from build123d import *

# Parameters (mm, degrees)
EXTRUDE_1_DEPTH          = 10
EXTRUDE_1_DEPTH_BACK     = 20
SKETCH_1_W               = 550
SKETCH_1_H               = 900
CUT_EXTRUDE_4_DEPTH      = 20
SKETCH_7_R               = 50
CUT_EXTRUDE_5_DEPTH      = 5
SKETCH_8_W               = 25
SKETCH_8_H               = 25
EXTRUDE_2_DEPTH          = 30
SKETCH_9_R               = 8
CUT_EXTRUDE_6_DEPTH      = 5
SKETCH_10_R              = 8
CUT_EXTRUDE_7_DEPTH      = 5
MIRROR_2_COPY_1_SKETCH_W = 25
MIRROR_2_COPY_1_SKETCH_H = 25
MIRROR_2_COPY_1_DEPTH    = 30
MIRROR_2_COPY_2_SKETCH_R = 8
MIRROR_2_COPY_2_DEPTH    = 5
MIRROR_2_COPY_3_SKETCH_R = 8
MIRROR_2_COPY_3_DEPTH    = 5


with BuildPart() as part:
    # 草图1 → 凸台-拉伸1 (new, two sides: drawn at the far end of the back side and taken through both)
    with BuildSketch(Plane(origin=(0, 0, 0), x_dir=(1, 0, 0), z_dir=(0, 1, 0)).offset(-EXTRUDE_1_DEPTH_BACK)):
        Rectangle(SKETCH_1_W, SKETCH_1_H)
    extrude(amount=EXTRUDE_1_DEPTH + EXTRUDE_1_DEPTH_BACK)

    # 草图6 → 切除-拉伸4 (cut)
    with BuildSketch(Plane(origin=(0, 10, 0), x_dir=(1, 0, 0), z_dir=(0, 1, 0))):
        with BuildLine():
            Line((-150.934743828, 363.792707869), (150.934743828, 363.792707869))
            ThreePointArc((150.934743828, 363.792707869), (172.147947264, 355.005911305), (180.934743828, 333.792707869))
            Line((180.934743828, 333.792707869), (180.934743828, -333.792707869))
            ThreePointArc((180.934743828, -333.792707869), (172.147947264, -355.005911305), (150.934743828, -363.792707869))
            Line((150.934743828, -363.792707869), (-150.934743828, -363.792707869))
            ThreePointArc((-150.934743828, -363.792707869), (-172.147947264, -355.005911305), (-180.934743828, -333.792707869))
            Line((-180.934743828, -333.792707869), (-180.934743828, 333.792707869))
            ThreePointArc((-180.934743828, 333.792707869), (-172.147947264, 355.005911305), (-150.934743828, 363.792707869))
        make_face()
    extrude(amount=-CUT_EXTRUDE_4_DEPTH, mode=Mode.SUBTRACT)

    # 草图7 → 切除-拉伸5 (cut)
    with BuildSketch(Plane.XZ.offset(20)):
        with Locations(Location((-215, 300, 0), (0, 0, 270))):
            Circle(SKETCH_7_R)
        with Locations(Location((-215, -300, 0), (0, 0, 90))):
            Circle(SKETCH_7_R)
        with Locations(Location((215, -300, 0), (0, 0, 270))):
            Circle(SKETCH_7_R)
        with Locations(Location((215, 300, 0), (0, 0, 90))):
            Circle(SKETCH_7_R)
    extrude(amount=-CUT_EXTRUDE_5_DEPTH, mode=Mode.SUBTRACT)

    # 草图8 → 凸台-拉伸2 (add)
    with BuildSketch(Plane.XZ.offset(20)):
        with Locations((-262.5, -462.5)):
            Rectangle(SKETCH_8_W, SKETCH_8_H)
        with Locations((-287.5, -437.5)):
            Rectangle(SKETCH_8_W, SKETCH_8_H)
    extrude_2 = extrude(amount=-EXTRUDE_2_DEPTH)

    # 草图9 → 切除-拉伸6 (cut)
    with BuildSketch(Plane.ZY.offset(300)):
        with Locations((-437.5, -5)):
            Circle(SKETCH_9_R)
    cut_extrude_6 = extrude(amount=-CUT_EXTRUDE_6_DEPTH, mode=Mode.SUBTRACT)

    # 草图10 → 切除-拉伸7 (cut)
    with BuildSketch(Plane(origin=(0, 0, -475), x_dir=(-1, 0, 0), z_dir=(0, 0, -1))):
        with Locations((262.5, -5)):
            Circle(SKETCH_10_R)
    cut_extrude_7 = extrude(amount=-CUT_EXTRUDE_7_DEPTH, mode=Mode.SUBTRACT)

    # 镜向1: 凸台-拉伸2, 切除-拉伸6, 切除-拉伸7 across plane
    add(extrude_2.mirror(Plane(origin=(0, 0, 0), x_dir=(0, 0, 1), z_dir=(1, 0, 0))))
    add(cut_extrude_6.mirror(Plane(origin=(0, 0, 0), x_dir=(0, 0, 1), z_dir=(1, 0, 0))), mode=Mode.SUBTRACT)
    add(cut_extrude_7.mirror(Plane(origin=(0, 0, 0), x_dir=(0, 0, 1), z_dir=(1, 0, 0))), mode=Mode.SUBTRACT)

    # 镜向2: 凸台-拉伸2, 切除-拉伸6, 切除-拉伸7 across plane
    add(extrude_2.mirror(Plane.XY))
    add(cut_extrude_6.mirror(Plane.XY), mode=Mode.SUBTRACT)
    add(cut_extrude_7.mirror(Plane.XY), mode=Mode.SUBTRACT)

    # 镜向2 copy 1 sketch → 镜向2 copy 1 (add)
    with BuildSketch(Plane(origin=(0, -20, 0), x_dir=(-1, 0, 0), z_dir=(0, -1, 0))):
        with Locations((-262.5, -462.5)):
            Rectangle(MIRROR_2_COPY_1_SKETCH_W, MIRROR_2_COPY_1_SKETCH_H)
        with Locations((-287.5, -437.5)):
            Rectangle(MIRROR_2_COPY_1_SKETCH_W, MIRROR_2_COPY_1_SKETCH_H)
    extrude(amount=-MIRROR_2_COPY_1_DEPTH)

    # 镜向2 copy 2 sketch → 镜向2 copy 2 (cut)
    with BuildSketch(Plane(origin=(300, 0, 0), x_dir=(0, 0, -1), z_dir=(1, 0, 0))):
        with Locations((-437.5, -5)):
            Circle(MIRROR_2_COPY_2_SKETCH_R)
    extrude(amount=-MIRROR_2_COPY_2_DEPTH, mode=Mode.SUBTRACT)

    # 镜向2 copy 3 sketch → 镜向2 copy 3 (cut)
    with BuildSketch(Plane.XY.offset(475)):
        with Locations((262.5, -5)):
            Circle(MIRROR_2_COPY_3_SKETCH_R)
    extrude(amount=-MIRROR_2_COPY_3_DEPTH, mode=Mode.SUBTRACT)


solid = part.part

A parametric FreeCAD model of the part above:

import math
import FreeCAD as App
import Part
import Sketcher
from FreeCAD import Vector

doc = App.newDocument("Part")
params = doc.addObject("Spreadsheet::Sheet", "Params")
for row, (alias, value) in enumerate([
    ("sketch1_width", "550 mm"),
    ("sketch1_height", "900 mm"),
    ("pad1_length", "10 mm"),
    ("pad1_length2", "20 mm"),
    ("sketch2_radius", "30 mm"),
    ("pocket1_length", "20 mm"),
    ("sketch3_diameter", "100 mm"),
    ("pocket2_length", "5 mm"),
    ("sketch4_width", "25 mm"),
    ("pad2_length", "30 mm"),
    ("sketch5_diameter", "16 mm"),
    ("pocket3_length", "5 mm"),
    ("sketch6_diameter", "16 mm"),
    ("pocket4_length", "5 mm"),
    ("sketch7_width", "25 mm"),
    ("pad3_length", "30 mm"),
    ("sketch8_diameter", "16 mm"),
    ("pocket5_length", "5 mm"),
    ("sketch9_diameter", "16 mm"),
    ("pocket6_length", "5 mm"),
], start=1):
    params.set(f"A{row}", alias)
    params.set(f"B{row}", "=" + value)
    params.setAlias(f"B{row}", alias)

body = doc.addObject("PartDesign::Body", "Body")

# Sketch on XZ plane
sketch1 = doc.addObject("Sketcher::SketchObject", "Sketch")
body.addObject(sketch1)
sketch1.AttachmentSupport = (doc.XZ_Plane, [""])
sketch1.MapMode = "FlatFace"
sketch1.addGeometry([
    Part.LineSegment(Vector(-275, -450, 0), Vector(-275, 450, 0)),
    Part.LineSegment(Vector(-275, 450, 0), Vector(275, 450, 0)),
    Part.LineSegment(Vector(275, 450, 0), Vector(275, -450, 0)),
    Part.LineSegment(Vector(275, -450, 0), Vector(-275, -450, 0)),
], False)
sketch1.addConstraint([
    Sketcher.Constraint("Coincident", 0, 2, 1, 1),
    Sketcher.Constraint("Coincident", 1, 2, 2, 1),
    Sketcher.Constraint("Coincident", 2, 2, 3, 1),
    Sketcher.Constraint("Coincident", 3, 2, 0, 1),
    Sketcher.Constraint("Vertical", 0),
    Sketcher.Constraint("Horizontal", 1),
    Sketcher.Constraint("Vertical", 2),
    Sketcher.Constraint("Horizontal", 3),
    Sketcher.Constraint("Symmetric", 0, 2, 2, 2, -1, 1),
    Sketcher.Constraint("DistanceX", 1, 1, 1, 2, 550.0),
    Sketcher.Constraint("DistanceY", 0, 1, 0, 2, 900.0),
])
sketch1.setExpression("Constraints[9]", "Params.sketch1_width")
sketch1.setExpression("Constraints[10]", "Params.sketch1_height")
pad1 = doc.addObject("PartDesign::Pad", "Pad")
body.addObject(pad1)
pad1.Profile = sketch1
pad1.Type = "TwoLengths"
pad1.setExpression("Length", "Params.pad1_length")
pad1.setExpression("Length2", "Params.pad1_length2")
pad1.Reversed = True

# Sketch on XZ plane
sketch2 = doc.addObject("Sketcher::SketchObject", "Sketch001")
body.addObject(sketch2)
sketch2.AttachmentSupport = (doc.XZ_Plane, [""])
sketch2.MapMode = "FlatFace"
sketch2.AttachmentOffset = App.Placement(Vector(0, 0, -10), App.Rotation())
sketch2.addGeometry([
    Part.LineSegment(Vector(151, -364, 0), Vector(-151, -364, 0)),  # 0
    Part.ArcOfCircle(Part.Circle(Vector(-151, -334, 0), Vector(0, 0, 1), 30), math.radians(180), math.radians(270)),  # 1
    Part.LineSegment(Vector(-181, -334, 0), Vector(-181, 334, 0)),  # 2
    Part.ArcOfCircle(Part.Circle(Vector(-151, 334, 0), Vector(0, 0, 1), 30), math.radians(90), math.radians(180)),  # 3
    Part.LineSegment(Vector(-151, 364, 0), Vector(151, 364, 0)),  # 4
    Part.ArcOfCircle(Part.Circle(Vector(151, 334, 0), Vector(0, 0, 1), 30), math.radians(0), math.radians(90)),  # 5
    Part.LineSegment(Vector(181, 334, 0), Vector(181, -334, 0)),  # 6
    Part.ArcOfCircle(Part.Circle(Vector(151, -334, 0), Vector(0, 0, 1), 30), math.radians(-90), math.radians(0)),  # 7
], False)
sketch2.addConstraint([
    Sketcher.Constraint("Tangent", 0, 2, 1, 2),
    Sketcher.Constraint("Tangent", 1, 1, 2, 1),
    Sketcher.Constraint("Tangent", 2, 2, 3, 2),
    Sketcher.Constraint("Tangent", 3, 1, 4, 1),
    Sketcher.Constraint("Tangent", 4, 2, 5, 2),
    Sketcher.Constraint("Tangent", 5, 1, 6, 1),
    Sketcher.Constraint("Tangent", 6, 2, 7, 2),
    Sketcher.Constraint("Tangent", 7, 1, 0, 1),
    Sketcher.Constraint("Horizontal", 0),
    Sketcher.Constraint("Vertical", 2),
    Sketcher.Constraint("Horizontal", 4),
    Sketcher.Constraint("Vertical", 6),
    Sketcher.Constraint("Equal", 1, 3),
    Sketcher.Constraint("Equal", 3, 5),
    Sketcher.Constraint("Equal", 5, 7),
    Sketcher.Constraint("Symmetric", 1, 3, 5, 3, -1, 1),
    Sketcher.Constraint("Radius", 1, 30.0),
    Sketcher.Constraint("DistanceX", 0, 2, 0, 1, 301.869488),
    Sketcher.Constraint("DistanceY", 2, 1, 2, 2, 667.585416),
])
sketch2.setExpression("Constraints[16]", "Params.sketch2_radius")
pocket1 = doc.addObject("PartDesign::Pocket", "Pocket")
body.addObject(pocket1)
pocket1.Profile = sketch2
pocket1.setExpression("Length", "Params.pocket1_length")
pocket1.Reversed = True

# Sketch on XZ plane
sketch3 = doc.addObject("Sketcher::SketchObject", "Sketch002")
body.addObject(sketch3)
sketch3.AttachmentSupport = (doc.XZ_Plane, [""])
sketch3.MapMode = "FlatFace"
sketch3.AttachmentOffset = App.Placement(Vector(0, 0, 20), App.Rotation())
sketch3.addGeometry([
    Part.Circle(Vector(-215, 300, 0), Vector(0, 0, 1), 50),
    Part.Circle(Vector(-215, -300, 0), Vector(0, 0, 1), 50),
    Part.Circle(Vector(215, -300, 0), Vector(0, 0, 1), 50),
    Part.Circle(Vector(215, 300, 0), Vector(0, 0, 1), 50),
], False)
sketch3.addConstraint([
    Sketcher.Constraint("Equal", 0, 1),
    Sketcher.Constraint("Equal", 1, 2),
    Sketcher.Constraint("Equal", 2, 3),
    Sketcher.Constraint("Symmetric", 0, 3, 2, 3, -1, 1),
    Sketcher.Constraint("Symmetric", 1, 3, 3, 3, -1, 1),
    Sketcher.Constraint("Symmetric", 1, 3, 2, 3, -2),
    Sketcher.Constraint("Diameter", 0, 100.0),
    Sketcher.Constraint("DistanceX", 0, 3, -1, 1, 215.0),
    Sketcher.Constraint("DistanceY", -1, 1, 0, 3, 300.0),
])
sketch3.setExpression("Constraints[6]", "Params.sketch3_diameter")
pocket2 = doc.addObject("PartDesign::Pocket", "Pocket001")
body.addObject(pocket2)
pocket2.Profile = sketch3
pocket2.setExpression("Length", "Params.pocket2_length")

# Sketch on XZ plane
sketch4 = doc.addObject("Sketcher::SketchObject", "Sketch003")
body.addObject(sketch4)
sketch4.AttachmentSupport = (doc.XZ_Plane, [""])
sketch4.MapMode = "FlatFace"
sketch4.AttachmentOffset = App.Placement(Vector(0, 0, 20), App.Rotation())
sketch4.addGeometry([
    Part.LineSegment(Vector(-275, -450, 0), Vector(-275, -475, 0)),  # 0
    Part.LineSegment(Vector(-275, -475, 0), Vector(-250, -475, 0)),  # 1
    Part.LineSegment(Vector(-250, -475, 0), Vector(-250, -450, 0)),  # 2
    Part.LineSegment(Vector(-250, -450, 0), Vector(-275, -450, 0)),  # 3
    Part.LineSegment(Vector(-300, -425, 0), Vector(-300, -450, 0)),  # 4
    Part.LineSegment(Vector(-300, -450, 0), Vector(-275, -450, 0)),  # 5
    Part.LineSegment(Vector(-275, -450, 0), Vector(-275, -425, 0)),  # 6
    Part.LineSegment(Vector(-275, -425, 0), Vector(-300, -425, 0)),  # 7
], False)
sketch4.addConstraint([
    Sketcher.Constraint("Coincident", 0, 2, 1, 1),
    Sketcher.Constraint("Coincident", 1, 2, 2, 1),
    Sketcher.Constraint("Coincident", 2, 2, 3, 1),
    Sketcher.Constraint("Coincident", 3, 2, 0, 1),
    Sketcher.Constraint("Coincident", 4, 2, 5, 1),
    Sketcher.Constraint("Coincident", 5, 2, 6, 1),
    Sketcher.Constraint("Coincident", 6, 2, 7, 1),
    Sketcher.Constraint("Coincident", 7, 2, 4, 1),
    Sketcher.Constraint("Vertical", 0),
    Sketcher.Constraint("Horizontal", 1),
    Sketcher.Constraint("Vertical", 2),
    Sketcher.Constraint("Horizontal", 3),
    Sketcher.Constraint("Vertical", 4),
    Sketcher.Constraint("Horizontal", 5),
    Sketcher.Constraint("Vertical", 6),
    Sketcher.Constraint("Horizontal", 7),
    Sketcher.Constraint("Coincident", 5, 2, 3, 2),
    Sketcher.Constraint("Equal", 3, 5),
    Sketcher.Constraint("Equal", 7, 0),
    Sketcher.Constraint("Equal", 2, 4),
    Sketcher.Constraint("DistanceX", 1, 1, 1, 2, 25.0),
    Sketcher.Constraint("DistanceX", 0, 2, -1, 1, 275.0),
    Sketcher.Constraint("DistanceY", 0, 2, -1, 1, 475.0),
])
sketch4.setExpression("Constraints[20]", "Params.sketch4_width")
pad2 = doc.addObject("PartDesign::Pad", "Pad001")
body.addObject(pad2)
pad2.Profile = sketch4
pad2.setExpression("Length", "Params.pad2_length")
pad2.Reversed = True

# Sketch on YZ plane
sketch5 = doc.addObject("Sketcher::SketchObject", "Sketch004")
body.addObject(sketch5)
sketch5.AttachmentSupport = (doc.YZ_Plane, [""])
sketch5.MapMode = "FlatFace"
sketch5.AttachmentOffset = App.Placement(Vector(0, 0, -300), App.Rotation())
sketch5.addGeometry(Part.Circle(Vector(-5, -438, 0), Vector(0, 0, 1), 8), False)
sketch5.addConstraint([
    Sketcher.Constraint("Diameter", 0, 16.0),
    Sketcher.Constraint("DistanceX", 0, 3, -1, 1, 5.0),
    Sketcher.Constraint("DistanceY", 0, 3, -1, 1, 437.5),
])
sketch5.setExpression("Constraints[0]", "Params.sketch5_diameter")
pocket3 = doc.addObject("PartDesign::Pocket", "Pocket002")
body.addObject(pocket3)
pocket3.Profile = sketch5
pocket3.setExpression("Length", "Params.pocket3_length")
pocket3.Reversed = True

# Sketch on XY plane
sketch6 = doc.addObject("Sketcher::SketchObject", "Sketch005")
body.addObject(sketch6)
sketch6.AttachmentSupport = (doc.XY_Plane, [""])
sketch6.MapMode = "FlatFace"
sketch6.AttachmentOffset = App.Placement(Vector(0, 0, -475), App.Rotation())
sketch6.addGeometry(Part.Circle(Vector(-262, -5, 0), Vector(0, 0, 1), 8), False)
sketch6.addConstraint([
    Sketcher.Constraint("Diameter", 0, 16.0),
    Sketcher.Constraint("DistanceY", 0, 3, -1, 1, 5.0),
    Sketcher.Constraint("DistanceX", 0, 3, -1, 1, 262.5),
])
sketch6.setExpression("Constraints[0]", "Params.sketch6_diameter")
pocket4 = doc.addObject("PartDesign::Pocket", "Pocket003")
body.addObject(pocket4)
pocket4.Profile = sketch6
pocket4.setExpression("Length", "Params.pocket4_length")
pocket4.Reversed = True
doc.recompute()

mirrored = doc.addObject("PartDesign::Mirrored", "Mirrored")
body.addObject(mirrored)
mirrored.Originals = [pad2, pocket3, pocket4]
mirrored.MirrorPlane = (doc.YZ_Plane, [""])
body.Tip = mirrored
doc.recompute()

mirrored2 = doc.addObject("PartDesign::Mirrored", "Mirrored001")
body.addObject(mirrored2)
mirrored2.Originals = [pad2, pocket3, pocket4]
mirrored2.MirrorPlane = (doc.XY_Plane, [""])
body.Tip = mirrored2

# Sketch on XZ plane
sketch7 = doc.addObject("Sketcher::SketchObject", "Sketch006")
body.addObject(sketch7)
sketch7.AttachmentSupport = (doc.XZ_Plane, [""])
sketch7.MapMode = "FlatFace"
sketch7.AttachmentOffset = App.Placement(Vector(0, 0, 20), App.Rotation())
sketch7.addGeometry([
    Part.LineSegment(Vector(275, 450, 0), Vector(275, 475, 0)),  # 0
    Part.LineSegment(Vector(275, 475, 0), Vector(250, 475, 0)),  # 1
    Part.LineSegment(Vector(250, 475, 0), Vector(250, 450, 0)),  # 2
    Part.LineSegment(Vector(250, 450, 0), Vector(275, 450, 0)),  # 3
    Part.LineSegment(Vector(300, 425, 0), Vector(300, 450, 0)),  # 4
    Part.LineSegment(Vector(300, 450, 0), Vector(275, 450, 0)),  # 5
    Part.LineSegment(Vector(275, 450, 0), Vector(275, 425, 0)),  # 6
    Part.LineSegment(Vector(275, 425, 0), Vector(300, 425, 0)),  # 7
], False)
sketch7.addConstraint([
    Sketcher.Constraint("Coincident", 0, 2, 1, 1),
    Sketcher.Constraint("Coincident", 1, 2, 2, 1),
    Sketcher.Constraint("Coincident", 2, 2, 3, 1),
    Sketcher.Constraint("Coincident", 3, 2, 0, 1),
    Sketcher.Constraint("Coincident", 4, 2, 5, 1),
    Sketcher.Constraint("Coincident", 5, 2, 6, 1),
    Sketcher.Constraint("Coincident", 6, 2, 7, 1),
    Sketcher.Constraint("Coincident", 7, 2, 4, 1),
    Sketcher.Constraint("Vertical", 0),
    Sketcher.Constraint("Horizontal", 1),
    Sketcher.Constraint("Vertical", 2),
    Sketcher.Constraint("Horizontal", 3),
    Sketcher.Constraint("Vertical", 4),
    Sketcher.Constraint("Horizontal", 5),
    Sketcher.Constraint("Vertical", 6),
    Sketcher.Constraint("Horizontal", 7),
    Sketcher.Constraint("Coincident", 5, 2, 3, 2),
    Sketcher.Constraint("Equal", 3, 5),
    Sketcher.Constraint("Equal", 7, 0),
    Sketcher.Constraint("Equal", 2, 4),
    Sketcher.Constraint("DistanceX", 1, 2, 1, 1, 25.0),
    Sketcher.Constraint("DistanceX", -1, 1, 0, 2, 275.0),
    Sketcher.Constraint("DistanceY", -1, 1, 0, 2, 475.0),
])
sketch7.setExpression("Constraints[20]", "Params.sketch7_width")
pad3 = doc.addObject("PartDesign::Pad", "Pad002")
body.addObject(pad3)
pad3.Profile = sketch7
pad3.setExpression("Length", "Params.pad3_length")
pad3.Reversed = True

# Sketch on YZ plane
sketch8 = doc.addObject("Sketcher::SketchObject", "Sketch007")
body.addObject(sketch8)
sketch8.AttachmentSupport = (doc.YZ_Plane, [""])
sketch8.MapMode = "FlatFace"
sketch8.AttachmentOffset = App.Placement(Vector(0, 0, 300), App.Rotation())
sketch8.addGeometry(Part.Circle(Vector(-5, 438, 0), Vector(0, 0, 1), 8), False)
sketch8.addConstraint([
    Sketcher.Constraint("Diameter", 0, 16.0),
    Sketcher.Constraint("DistanceX", 0, 3, -1, 1, 5.0),
    Sketcher.Constraint("DistanceY", -1, 1, 0, 3, 437.5),
])
sketch8.setExpression("Constraints[0]", "Params.sketch8_diameter")
pocket5 = doc.addObject("PartDesign::Pocket", "Pocket004")
body.addObject(pocket5)
pocket5.Profile = sketch8
pocket5.setExpression("Length", "Params.pocket5_length")

# Sketch on XY plane
sketch9 = doc.addObject("Sketcher::SketchObject", "Sketch008")
body.addObject(sketch9)
sketch9.AttachmentSupport = (doc.XY_Plane, [""])
sketch9.MapMode = "FlatFace"
sketch9.AttachmentOffset = App.Placement(Vector(0, 0, 475), App.Rotation())
sketch9.addGeometry(Part.Circle(Vector(262, -5, 0), Vector(0, 0, 1), 8), False)
sketch9.addConstraint([
    Sketcher.Constraint("Diameter", 0, 16.0),
    Sketcher.Constraint("DistanceY", 0, 3, -1, 1, 5.0),
    Sketcher.Constraint("DistanceX", -1, 1, 0, 3, 262.5),
])
sketch9.setExpression("Constraints[0]", "Params.sketch9_diameter")
pocket6 = doc.addObject("PartDesign::Pocket", "Pocket005")
body.addObject(pocket6)
pocket6.Profile = sketch9
pocket6.setExpression("Length", "Params.pocket6_length")

doc.recompute()
